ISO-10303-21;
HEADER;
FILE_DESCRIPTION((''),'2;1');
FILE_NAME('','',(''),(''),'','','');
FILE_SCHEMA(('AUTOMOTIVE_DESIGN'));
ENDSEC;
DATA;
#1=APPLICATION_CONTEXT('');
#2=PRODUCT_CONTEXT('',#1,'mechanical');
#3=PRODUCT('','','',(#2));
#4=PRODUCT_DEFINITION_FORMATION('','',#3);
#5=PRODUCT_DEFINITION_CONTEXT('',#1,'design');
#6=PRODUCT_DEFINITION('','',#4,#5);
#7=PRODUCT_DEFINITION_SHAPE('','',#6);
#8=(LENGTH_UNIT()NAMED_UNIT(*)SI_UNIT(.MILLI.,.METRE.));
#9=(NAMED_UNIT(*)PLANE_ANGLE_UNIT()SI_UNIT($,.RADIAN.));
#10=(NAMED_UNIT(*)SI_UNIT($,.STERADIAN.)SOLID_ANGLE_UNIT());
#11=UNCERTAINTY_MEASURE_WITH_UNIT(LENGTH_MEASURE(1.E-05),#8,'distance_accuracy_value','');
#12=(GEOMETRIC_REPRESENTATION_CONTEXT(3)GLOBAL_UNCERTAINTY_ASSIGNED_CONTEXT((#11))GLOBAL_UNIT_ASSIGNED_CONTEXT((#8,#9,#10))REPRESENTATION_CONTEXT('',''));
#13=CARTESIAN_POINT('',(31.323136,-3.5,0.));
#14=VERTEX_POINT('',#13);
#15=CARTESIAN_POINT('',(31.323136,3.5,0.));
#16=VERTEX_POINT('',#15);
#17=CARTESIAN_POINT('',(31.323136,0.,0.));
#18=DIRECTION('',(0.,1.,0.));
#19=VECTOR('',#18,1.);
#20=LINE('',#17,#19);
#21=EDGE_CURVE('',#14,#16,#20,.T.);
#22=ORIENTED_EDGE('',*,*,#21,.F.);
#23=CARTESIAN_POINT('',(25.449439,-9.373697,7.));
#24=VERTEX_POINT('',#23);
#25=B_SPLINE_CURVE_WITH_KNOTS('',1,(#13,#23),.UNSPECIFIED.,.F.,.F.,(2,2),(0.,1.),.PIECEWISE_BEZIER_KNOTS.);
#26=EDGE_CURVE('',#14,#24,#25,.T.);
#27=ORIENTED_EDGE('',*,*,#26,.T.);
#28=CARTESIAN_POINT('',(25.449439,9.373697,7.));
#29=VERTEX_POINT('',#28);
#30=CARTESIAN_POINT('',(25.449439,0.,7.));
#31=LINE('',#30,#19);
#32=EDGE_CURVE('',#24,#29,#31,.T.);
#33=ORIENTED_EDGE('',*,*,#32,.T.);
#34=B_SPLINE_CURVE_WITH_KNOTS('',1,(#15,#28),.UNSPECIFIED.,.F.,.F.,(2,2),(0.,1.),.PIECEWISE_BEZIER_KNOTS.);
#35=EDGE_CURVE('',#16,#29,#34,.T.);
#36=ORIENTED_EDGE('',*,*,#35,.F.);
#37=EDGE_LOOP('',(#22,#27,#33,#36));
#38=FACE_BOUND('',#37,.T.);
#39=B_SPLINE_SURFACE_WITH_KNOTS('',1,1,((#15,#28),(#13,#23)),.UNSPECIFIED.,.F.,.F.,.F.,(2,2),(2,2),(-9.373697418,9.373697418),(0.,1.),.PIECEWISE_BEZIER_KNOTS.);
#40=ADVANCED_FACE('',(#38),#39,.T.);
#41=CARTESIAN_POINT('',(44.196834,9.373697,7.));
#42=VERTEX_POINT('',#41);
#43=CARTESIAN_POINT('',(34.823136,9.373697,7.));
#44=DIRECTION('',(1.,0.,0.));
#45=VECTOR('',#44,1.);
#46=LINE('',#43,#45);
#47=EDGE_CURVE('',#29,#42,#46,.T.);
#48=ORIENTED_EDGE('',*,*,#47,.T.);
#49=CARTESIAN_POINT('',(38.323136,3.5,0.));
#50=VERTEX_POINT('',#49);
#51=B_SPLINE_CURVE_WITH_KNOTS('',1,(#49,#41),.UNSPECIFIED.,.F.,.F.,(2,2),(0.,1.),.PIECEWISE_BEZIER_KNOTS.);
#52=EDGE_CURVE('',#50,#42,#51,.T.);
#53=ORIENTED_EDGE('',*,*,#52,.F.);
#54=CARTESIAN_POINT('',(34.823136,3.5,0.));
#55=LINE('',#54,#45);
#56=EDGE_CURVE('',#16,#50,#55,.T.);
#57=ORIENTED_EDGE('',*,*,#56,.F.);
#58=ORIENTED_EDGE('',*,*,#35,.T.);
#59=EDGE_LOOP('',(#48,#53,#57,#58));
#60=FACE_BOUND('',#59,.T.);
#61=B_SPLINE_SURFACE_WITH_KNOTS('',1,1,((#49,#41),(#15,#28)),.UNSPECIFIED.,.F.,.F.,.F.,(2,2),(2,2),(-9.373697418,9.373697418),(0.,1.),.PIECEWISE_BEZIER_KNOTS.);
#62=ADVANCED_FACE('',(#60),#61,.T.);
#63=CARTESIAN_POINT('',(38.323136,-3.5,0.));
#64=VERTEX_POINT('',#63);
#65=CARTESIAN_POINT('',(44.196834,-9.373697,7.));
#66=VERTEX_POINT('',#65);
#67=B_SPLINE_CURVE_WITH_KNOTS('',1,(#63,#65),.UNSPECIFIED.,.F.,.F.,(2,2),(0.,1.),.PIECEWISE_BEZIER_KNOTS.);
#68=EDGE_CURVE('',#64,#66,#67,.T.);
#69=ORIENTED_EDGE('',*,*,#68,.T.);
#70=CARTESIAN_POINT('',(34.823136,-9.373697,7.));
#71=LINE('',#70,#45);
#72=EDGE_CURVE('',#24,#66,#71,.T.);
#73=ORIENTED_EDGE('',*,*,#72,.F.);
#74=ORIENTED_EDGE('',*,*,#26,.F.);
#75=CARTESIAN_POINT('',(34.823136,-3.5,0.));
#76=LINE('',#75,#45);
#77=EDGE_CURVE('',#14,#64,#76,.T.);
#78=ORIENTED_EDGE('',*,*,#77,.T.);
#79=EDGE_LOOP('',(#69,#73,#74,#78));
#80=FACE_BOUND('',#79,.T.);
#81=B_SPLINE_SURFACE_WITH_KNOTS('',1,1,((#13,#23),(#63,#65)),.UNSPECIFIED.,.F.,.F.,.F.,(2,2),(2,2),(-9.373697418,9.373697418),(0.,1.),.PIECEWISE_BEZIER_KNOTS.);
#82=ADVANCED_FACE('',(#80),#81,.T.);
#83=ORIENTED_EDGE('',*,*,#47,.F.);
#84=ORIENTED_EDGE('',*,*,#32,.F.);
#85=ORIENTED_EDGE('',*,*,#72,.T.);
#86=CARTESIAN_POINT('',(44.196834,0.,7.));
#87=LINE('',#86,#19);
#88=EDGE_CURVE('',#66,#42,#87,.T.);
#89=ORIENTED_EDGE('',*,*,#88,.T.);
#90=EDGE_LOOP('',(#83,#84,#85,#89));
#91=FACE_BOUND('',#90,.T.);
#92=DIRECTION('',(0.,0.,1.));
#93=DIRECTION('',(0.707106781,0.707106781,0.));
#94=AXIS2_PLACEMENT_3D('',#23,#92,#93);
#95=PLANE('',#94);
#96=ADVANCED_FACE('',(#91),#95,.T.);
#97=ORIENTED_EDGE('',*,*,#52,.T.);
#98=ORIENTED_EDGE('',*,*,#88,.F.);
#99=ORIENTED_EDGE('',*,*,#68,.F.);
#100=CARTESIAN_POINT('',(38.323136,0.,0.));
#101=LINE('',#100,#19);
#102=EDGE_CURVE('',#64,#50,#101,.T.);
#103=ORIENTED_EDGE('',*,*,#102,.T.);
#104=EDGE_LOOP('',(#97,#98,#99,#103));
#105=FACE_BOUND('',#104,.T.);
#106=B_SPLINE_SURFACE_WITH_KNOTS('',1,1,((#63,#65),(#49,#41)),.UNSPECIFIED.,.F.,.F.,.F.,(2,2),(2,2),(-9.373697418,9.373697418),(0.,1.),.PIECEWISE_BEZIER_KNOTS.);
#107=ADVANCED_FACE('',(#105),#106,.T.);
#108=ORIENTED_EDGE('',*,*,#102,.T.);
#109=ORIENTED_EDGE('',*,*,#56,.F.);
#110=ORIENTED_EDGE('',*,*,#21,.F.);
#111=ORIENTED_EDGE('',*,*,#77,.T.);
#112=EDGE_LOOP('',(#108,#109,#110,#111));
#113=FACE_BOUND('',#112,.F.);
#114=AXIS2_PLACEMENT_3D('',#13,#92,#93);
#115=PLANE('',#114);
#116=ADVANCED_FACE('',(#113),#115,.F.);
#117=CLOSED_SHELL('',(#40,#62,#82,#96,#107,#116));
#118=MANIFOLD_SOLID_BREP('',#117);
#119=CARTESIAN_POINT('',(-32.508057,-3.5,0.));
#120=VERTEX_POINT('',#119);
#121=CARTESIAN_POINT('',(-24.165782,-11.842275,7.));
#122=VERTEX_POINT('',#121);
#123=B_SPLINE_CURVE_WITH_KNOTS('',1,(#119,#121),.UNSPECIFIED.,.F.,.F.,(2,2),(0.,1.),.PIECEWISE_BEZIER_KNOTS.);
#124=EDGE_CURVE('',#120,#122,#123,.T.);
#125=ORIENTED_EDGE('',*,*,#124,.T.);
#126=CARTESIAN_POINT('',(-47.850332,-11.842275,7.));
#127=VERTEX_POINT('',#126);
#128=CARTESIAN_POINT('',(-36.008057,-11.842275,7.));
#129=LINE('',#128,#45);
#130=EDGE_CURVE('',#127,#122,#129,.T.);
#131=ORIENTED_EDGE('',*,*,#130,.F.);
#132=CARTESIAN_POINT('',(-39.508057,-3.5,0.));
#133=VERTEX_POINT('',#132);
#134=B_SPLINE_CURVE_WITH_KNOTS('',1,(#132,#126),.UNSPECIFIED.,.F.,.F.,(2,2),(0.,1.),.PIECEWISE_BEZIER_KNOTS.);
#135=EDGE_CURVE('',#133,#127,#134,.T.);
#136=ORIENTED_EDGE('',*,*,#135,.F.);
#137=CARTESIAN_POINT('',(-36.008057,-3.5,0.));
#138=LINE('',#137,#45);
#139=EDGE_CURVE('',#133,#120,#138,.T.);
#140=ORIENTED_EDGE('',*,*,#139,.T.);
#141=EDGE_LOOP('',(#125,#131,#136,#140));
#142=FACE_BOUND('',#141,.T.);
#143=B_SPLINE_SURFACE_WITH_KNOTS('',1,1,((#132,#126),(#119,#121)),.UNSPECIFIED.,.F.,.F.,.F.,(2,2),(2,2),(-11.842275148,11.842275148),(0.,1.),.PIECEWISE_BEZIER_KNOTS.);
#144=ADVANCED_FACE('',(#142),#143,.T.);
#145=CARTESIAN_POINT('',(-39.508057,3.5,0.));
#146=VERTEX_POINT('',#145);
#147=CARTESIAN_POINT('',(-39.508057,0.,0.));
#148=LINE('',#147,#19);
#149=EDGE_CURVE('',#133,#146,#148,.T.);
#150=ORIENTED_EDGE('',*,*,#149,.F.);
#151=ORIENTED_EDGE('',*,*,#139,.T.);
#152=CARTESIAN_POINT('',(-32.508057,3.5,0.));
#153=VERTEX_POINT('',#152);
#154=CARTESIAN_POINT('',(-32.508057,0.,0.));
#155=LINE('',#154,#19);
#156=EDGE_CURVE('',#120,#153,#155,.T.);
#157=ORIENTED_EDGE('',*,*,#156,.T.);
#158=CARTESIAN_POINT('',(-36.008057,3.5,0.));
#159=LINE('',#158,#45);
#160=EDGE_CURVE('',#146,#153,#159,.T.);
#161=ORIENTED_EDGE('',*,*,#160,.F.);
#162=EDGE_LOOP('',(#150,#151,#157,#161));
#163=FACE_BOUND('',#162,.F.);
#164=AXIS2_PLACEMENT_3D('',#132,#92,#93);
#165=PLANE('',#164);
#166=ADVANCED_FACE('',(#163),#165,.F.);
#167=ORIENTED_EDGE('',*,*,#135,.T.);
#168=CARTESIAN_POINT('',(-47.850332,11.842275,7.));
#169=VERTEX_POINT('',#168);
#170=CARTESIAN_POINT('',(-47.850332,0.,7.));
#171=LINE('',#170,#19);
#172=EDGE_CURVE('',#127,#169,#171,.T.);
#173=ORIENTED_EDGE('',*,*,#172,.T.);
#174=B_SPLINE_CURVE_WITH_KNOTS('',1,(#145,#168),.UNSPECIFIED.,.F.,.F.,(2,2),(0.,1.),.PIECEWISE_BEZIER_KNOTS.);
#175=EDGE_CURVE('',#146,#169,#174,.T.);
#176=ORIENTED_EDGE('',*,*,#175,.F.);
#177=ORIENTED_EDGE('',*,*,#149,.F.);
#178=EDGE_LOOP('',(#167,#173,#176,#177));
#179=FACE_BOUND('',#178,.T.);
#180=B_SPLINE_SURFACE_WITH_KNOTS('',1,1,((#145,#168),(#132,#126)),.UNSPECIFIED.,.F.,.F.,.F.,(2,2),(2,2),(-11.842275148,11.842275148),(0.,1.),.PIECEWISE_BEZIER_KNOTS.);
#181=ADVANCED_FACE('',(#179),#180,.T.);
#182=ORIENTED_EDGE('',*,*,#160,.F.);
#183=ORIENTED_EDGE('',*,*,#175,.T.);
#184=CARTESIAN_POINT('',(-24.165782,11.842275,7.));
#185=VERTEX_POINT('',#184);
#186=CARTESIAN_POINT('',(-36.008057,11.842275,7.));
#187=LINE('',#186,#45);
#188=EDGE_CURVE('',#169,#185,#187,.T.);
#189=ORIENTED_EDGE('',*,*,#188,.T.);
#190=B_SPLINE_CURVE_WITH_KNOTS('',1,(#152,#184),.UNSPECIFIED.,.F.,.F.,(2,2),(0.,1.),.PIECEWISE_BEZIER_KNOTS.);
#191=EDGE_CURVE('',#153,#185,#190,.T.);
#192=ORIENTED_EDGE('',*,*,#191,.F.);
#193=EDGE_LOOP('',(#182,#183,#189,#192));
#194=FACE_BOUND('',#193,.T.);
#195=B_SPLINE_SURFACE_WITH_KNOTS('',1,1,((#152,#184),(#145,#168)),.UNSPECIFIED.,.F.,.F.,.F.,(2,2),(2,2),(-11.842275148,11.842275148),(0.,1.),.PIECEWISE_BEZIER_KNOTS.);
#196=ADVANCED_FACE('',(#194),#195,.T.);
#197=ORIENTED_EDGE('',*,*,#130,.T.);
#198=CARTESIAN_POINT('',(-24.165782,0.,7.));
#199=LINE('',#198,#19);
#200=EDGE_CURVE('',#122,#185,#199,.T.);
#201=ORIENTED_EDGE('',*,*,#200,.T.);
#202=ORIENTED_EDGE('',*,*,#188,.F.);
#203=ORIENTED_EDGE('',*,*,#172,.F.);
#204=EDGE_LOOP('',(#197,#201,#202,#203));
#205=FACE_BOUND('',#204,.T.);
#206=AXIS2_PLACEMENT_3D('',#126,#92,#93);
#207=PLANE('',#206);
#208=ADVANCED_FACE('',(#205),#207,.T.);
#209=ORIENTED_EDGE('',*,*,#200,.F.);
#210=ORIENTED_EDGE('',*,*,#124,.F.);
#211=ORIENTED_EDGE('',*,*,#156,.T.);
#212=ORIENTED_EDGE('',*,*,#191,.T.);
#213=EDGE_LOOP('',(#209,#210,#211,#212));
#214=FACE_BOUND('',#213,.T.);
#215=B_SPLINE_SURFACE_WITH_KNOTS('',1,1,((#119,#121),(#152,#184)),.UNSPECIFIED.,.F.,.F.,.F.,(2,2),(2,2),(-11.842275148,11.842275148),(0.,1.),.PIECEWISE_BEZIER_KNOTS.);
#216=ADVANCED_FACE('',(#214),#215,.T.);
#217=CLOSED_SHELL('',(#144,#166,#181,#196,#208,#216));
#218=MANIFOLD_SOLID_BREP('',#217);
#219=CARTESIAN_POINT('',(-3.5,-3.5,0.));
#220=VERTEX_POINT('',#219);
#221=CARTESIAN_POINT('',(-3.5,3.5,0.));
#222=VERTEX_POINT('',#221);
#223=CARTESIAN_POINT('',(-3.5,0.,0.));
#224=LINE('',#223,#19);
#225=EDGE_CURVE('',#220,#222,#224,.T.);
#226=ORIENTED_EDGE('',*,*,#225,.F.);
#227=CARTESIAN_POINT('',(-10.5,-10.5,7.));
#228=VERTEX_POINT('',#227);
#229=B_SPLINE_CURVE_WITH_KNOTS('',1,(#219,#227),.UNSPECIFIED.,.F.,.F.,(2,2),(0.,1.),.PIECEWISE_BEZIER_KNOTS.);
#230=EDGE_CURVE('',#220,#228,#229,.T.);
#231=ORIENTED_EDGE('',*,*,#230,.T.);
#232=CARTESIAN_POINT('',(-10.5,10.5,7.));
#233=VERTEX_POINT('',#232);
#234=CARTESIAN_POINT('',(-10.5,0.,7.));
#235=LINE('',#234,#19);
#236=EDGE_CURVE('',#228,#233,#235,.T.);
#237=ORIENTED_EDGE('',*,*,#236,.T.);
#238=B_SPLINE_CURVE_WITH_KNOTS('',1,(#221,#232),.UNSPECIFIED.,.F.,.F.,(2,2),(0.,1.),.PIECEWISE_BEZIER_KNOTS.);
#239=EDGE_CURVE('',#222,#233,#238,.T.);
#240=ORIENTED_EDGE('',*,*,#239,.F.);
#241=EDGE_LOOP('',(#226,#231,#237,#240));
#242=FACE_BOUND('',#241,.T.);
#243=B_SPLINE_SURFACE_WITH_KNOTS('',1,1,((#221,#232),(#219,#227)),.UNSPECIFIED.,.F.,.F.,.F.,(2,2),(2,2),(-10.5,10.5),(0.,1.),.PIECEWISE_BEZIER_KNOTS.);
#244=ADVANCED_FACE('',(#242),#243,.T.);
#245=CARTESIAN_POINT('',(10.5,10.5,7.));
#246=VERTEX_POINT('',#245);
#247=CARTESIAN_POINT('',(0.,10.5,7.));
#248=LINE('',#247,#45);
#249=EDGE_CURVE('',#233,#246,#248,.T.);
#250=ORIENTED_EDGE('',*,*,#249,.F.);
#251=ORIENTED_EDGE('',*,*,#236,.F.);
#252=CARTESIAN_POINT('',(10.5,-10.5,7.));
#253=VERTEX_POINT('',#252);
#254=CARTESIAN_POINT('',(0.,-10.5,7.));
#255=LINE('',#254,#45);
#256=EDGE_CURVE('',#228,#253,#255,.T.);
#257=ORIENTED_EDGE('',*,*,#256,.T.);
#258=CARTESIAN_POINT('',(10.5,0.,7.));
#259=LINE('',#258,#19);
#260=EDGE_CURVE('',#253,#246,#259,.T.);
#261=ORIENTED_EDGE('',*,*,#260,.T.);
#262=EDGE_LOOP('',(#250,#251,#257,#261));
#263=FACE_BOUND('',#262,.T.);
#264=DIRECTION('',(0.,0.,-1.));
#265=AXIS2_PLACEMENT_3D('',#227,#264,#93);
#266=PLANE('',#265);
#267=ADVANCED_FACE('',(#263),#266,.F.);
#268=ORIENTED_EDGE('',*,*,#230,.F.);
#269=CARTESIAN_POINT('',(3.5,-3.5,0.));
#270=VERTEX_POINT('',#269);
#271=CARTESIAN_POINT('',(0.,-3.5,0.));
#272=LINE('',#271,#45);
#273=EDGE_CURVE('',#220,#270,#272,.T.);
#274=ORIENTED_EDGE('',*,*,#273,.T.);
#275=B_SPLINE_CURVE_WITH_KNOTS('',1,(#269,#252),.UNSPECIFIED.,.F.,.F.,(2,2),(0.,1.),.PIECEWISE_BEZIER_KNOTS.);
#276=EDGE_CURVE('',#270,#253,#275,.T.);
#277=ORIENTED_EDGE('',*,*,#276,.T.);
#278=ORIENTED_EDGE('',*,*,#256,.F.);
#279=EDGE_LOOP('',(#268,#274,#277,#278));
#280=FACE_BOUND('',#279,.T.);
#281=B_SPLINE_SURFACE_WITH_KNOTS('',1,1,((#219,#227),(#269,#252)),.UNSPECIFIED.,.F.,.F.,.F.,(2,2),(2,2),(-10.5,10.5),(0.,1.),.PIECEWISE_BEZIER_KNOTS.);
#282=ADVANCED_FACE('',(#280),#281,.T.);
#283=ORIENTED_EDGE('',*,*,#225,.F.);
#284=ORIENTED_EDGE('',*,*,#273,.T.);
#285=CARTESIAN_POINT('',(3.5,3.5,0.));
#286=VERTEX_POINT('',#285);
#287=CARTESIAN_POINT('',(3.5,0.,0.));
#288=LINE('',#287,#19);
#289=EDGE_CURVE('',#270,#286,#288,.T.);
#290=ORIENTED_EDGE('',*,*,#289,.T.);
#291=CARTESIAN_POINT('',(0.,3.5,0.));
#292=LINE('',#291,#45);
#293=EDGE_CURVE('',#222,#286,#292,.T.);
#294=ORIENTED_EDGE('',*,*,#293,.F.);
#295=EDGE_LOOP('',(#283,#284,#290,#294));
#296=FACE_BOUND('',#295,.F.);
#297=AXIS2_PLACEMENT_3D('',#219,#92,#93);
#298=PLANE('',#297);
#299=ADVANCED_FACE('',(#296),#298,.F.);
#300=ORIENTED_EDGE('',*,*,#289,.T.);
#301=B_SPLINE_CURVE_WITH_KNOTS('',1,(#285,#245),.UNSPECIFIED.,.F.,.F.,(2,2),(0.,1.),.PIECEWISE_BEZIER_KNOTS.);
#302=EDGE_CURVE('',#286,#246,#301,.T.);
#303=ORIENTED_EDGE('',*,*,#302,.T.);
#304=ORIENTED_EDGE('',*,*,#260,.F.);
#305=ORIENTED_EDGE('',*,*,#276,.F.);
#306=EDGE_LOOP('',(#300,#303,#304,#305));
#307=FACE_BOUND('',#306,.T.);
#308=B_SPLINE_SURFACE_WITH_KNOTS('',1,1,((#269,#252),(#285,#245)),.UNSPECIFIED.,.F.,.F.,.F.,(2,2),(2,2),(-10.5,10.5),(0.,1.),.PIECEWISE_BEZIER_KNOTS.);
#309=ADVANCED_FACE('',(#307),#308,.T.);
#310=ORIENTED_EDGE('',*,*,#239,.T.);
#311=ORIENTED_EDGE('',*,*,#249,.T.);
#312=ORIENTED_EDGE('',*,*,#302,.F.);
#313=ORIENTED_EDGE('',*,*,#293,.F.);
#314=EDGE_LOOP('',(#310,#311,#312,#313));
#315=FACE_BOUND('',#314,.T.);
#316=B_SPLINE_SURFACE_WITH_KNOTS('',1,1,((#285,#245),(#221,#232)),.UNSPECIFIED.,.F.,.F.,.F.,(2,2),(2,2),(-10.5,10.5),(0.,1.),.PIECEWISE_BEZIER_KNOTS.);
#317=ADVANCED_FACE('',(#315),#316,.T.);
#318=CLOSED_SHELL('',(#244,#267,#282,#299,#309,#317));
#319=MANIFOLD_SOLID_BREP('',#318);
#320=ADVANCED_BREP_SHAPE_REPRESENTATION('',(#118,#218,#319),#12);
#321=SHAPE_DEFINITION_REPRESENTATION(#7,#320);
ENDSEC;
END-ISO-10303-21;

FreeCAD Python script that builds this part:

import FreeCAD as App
import Part
import Sketcher
from FreeCAD import Vector


def add_polygon(sketch, points):
    """Adds a closed chain of lines whose ends are joined by coincident constraints."""
    first, n = sketch.GeometryCount, len(points)
    for a, b in zip(points, points[1:] + points[:1]):
        sketch.addGeometry(Part.LineSegment(App.Vector(*a, 0), App.Vector(*b, 0)), False)
    for i in range(n):
        sketch.addConstraint(Sketcher.Constraint("Coincident", first + i, 2, first + (i + 1) % n, 1))

doc = App.newDocument("Part")
body = doc.addObject("PartDesign::Body", "Body")

# Sketch on XY plane
sketch1 = body.newObject("Sketcher::SketchObject", "Sketch")
sketch1.AttachmentSupport = (doc.getObject("XY_Plane"), [""])
sketch1.MapMode = "FlatFace"
add_polygon(sketch1, [(-3.5, 3.5), (-3.5, -3.5), (3.5, -3.5), (3.5, 3.5)])  # lines 0-3
sketch1.addConstraint([
    Sketcher.Constraint("Vertical", 0),
    Sketcher.Constraint("Horizontal", 1),
    Sketcher.Constraint("Vertical", 2),
    Sketcher.Constraint("Horizontal", 3),
    Sketcher.Constraint("Symmetric", 0, 2, 2, 2, -1, 1),
    Sketcher.Constraint("Equal", 3, 0),
    Sketcher.Constraint("DistanceX", 1, 1, 1, 2, 7.0),
])
pad1 = body.newObject("PartDesign::Pad", "Pad")
pad1.Profile = sketch1
pad1.Length = 7
pad1.TaperAngle = 45
body2 = doc.addObject("PartDesign::Body", "Body001")

# Sketch on XY plane
sketch2 = body2.newObject("Sketcher::SketchObject", "Sketch001")
sketch2.AttachmentSupport = (doc.getObject("XY_Plane001"), [""])
sketch2.MapMode = "FlatFace"
add_polygon(sketch2, [(-39.508057, 3.5), (-39.508057, -3.5), (-32.508057, -3.5), (-32.508057, 3.5)])  # lines 0-3
sketch2.addConstraint([
    Sketcher.Constraint("Vertical", 0),
    Sketcher.Constraint("Horizontal", 1),
    Sketcher.Constraint("Vertical", 2),
    Sketcher.Constraint("Horizontal", 3),
    Sketcher.Constraint("Equal", 3, 0),
    Sketcher.Constraint("DistanceX", 1, 1, 1, 2, 7.0),
    Sketcher.Constraint("DistanceY", 0, 2, -1, 1, 3.5),
    Sketcher.Constraint("DistanceX", 0, 2, -1, 1, 39.508057),
])
pad2 = body2.newObject("PartDesign::Pad", "Pad001")
pad2.Profile = sketch2
pad2.Length = 7
pad2.TaperAngle = 50
body3 = doc.addObject("PartDesign::Body", "Body002")

# Sketch on XY plane
sketch3 = body3.newObject("Sketcher::SketchObject", "Sketch002")
sketch3.AttachmentSupport = (doc.getObject("XY_Plane002"), [""])
sketch3.MapMode = "FlatFace"
add_polygon(sketch3, [(31.323136, 3.5), (31.323136, -3.5), (38.323136, -3.5), (38.323136, 3.5)])  # lines 0-3
sketch3.addConstraint([
    Sketcher.Constraint("Vertical", 0),
    Sketcher.Constraint("Horizontal", 1),
    Sketcher.Constraint("Vertical", 2),
    Sketcher.Constraint("Horizontal", 3),
    Sketcher.Constraint("Equal", 3, 0),
    Sketcher.Constraint("DistanceX", 1, 1, 1, 2, 7.0),
    Sketcher.Constraint("DistanceY", 0, 2, -1, 1, 3.5),
    Sketcher.Constraint("DistanceX", -1, 1, 0, 2, 31.323136),
])
pad3 = body3.newObject("PartDesign::Pad", "Pad002")
pad3.Profile = sketch3
pad3.Length = 7
pad3.TaperAngle = 40

doc.recompute()
